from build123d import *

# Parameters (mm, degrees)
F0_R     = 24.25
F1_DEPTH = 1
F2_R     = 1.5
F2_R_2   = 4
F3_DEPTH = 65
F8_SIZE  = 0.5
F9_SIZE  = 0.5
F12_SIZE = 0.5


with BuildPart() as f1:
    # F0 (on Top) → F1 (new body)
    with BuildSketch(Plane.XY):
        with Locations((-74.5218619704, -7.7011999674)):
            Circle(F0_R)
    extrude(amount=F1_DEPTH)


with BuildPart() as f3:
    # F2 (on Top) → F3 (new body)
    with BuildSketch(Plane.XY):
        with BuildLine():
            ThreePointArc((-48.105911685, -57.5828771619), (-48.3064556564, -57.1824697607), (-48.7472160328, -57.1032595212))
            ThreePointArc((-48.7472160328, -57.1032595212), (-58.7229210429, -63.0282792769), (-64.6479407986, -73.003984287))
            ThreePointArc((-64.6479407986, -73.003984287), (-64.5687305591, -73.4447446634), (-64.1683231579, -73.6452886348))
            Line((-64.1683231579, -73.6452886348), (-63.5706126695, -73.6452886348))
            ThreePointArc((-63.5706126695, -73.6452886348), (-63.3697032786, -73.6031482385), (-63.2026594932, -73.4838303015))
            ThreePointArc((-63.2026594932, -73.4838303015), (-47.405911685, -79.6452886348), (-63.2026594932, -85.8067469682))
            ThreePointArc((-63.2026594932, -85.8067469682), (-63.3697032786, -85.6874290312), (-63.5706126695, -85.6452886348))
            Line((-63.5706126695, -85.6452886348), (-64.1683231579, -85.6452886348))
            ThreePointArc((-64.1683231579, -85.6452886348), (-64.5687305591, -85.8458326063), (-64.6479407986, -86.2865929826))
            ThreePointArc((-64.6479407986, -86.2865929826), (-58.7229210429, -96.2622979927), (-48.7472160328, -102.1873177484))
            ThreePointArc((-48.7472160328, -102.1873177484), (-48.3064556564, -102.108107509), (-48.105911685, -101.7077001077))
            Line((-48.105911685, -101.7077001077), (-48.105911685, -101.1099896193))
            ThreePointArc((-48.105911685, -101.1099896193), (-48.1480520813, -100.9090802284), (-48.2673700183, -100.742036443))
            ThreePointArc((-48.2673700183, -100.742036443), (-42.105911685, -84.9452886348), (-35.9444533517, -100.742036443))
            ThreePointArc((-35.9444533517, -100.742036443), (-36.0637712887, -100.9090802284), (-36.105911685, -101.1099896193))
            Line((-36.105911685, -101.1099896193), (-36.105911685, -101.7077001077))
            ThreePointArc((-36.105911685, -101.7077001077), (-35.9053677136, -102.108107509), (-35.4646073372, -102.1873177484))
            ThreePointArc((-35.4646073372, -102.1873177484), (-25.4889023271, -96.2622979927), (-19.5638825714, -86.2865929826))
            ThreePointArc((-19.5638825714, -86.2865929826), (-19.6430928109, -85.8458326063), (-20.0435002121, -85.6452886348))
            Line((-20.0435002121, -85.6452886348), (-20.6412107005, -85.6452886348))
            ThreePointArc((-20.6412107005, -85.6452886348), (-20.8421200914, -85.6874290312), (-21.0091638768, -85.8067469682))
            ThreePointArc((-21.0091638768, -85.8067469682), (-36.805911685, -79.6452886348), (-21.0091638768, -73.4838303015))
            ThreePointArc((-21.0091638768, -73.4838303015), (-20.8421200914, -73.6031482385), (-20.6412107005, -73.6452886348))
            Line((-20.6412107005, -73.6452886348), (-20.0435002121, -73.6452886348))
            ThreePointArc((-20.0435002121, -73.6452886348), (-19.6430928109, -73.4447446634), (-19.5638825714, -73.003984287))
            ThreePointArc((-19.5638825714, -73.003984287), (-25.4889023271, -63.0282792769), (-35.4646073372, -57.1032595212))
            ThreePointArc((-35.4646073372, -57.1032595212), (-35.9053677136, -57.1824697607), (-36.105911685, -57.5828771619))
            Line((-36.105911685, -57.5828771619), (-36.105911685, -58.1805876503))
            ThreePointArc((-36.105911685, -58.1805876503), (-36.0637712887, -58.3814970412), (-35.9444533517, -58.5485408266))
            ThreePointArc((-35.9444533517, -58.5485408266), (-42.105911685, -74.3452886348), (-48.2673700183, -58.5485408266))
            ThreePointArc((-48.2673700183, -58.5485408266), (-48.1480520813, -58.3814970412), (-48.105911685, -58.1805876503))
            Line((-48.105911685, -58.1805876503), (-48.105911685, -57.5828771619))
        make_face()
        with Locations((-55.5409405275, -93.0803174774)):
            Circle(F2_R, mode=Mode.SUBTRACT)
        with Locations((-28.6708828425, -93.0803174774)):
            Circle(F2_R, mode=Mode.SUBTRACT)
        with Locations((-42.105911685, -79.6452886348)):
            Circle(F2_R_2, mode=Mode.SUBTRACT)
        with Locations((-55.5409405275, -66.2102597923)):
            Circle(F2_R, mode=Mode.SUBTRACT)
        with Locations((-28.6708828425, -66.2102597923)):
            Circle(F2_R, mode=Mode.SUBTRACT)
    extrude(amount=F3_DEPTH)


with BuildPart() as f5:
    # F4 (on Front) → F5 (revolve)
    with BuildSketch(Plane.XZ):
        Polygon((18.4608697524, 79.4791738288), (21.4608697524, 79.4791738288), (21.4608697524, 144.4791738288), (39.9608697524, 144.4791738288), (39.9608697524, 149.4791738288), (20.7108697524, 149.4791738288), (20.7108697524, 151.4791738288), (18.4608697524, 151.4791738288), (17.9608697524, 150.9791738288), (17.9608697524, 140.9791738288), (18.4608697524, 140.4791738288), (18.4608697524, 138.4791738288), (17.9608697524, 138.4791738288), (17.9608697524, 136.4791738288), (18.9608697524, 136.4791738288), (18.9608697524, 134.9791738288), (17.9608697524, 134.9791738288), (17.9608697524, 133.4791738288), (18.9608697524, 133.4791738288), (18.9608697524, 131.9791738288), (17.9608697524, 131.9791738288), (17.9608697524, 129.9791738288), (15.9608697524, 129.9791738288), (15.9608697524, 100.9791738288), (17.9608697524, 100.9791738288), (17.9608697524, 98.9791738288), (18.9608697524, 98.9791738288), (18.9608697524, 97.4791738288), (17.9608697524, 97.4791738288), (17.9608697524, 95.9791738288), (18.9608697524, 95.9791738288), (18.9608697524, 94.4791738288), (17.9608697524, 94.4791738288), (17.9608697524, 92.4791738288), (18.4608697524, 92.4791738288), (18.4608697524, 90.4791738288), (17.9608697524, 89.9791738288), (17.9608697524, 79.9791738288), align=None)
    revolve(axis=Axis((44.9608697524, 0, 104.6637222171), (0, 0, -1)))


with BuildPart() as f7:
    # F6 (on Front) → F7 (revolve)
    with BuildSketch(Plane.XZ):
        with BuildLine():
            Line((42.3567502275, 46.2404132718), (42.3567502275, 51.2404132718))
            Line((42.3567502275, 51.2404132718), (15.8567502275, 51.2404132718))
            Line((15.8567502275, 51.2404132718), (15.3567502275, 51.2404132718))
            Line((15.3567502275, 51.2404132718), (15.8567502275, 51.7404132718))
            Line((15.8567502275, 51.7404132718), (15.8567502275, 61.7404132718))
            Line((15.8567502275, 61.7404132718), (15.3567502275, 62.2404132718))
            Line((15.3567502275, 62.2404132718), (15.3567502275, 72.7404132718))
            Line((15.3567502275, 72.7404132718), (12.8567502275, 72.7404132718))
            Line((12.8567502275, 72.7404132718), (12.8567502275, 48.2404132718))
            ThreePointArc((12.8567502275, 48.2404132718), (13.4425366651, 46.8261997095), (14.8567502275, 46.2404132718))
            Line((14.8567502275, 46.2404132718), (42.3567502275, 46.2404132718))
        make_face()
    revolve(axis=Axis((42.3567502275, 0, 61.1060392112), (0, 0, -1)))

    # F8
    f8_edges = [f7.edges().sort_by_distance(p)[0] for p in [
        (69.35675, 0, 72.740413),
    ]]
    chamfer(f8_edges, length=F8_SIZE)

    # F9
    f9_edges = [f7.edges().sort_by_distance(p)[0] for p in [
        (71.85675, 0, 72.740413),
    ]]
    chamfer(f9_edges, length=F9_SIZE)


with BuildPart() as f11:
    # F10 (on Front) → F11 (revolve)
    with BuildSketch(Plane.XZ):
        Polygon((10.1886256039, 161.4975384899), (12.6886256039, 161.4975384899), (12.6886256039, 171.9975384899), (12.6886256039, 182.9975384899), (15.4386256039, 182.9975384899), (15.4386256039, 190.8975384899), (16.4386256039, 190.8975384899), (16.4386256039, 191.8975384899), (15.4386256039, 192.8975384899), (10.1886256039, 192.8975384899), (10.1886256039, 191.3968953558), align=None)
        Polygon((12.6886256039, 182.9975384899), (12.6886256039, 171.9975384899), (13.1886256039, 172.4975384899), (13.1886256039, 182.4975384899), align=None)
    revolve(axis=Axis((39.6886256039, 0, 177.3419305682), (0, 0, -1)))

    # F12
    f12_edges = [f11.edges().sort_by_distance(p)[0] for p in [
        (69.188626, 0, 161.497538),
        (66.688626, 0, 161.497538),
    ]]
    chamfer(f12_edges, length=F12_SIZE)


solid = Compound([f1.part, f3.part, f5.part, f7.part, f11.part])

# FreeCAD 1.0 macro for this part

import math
import FreeCAD as App
import Part
import Sketcher

V = App.Vector
Q = App.Units.Quantity


def edges_at(feature, points):
    """Names of the edges that pass closest to the given points."""
    edges = feature.Shape.Edges
    near = lambda p: min(range(len(edges)), key=lambda i: edges[i].distToShape(Part.Vertex(*p))[0])
    return sorted({f"Edge{near(p) + 1}" for p in points})


def add_polygon(sketch, points):
    """Adds a closed chain of lines whose ends are joined by coincident constraints."""
    first, n = sketch.GeometryCount, len(points)
    for a, b in zip(points, points[1:] + points[:1]):
        sketch.addGeometry(Part.LineSegment(App.Vector(*a, 0), App.Vector(*b, 0)), False)
    for i in range(n):
        sketch.addConstraint(Sketcher.Constraint("Coincident", first + i, 2, first + (i + 1) % n, 1))

doc = App.newDocument("Part")
body = doc.addObject("PartDesign::Body", "Body")

# Sketch on XY plane
sketch1 = body.newObject("Sketcher::SketchObject", "Sketch")
sketch1.AttachmentSupport = (doc.getObject("XY_Plane"), [""])
sketch1.MapMode = "FlatFace"
sketch1.addGeometry(Part.Circle(V(-75, -8, 0), V(0, 0, 1), 24), False)
sketch1.addConstraint(Sketcher.Constraint("Diameter", 0, Q("48.5 mm")))
sketch1.addConstraint(Sketcher.Constraint("DistanceY", 0, 3, -1, 1, Q("7.7012 mm")))
sketch1.addConstraint(Sketcher.Constraint("DistanceX", 0, 3, -1, 1, Q("74.521862 mm")))
pad1 = body.newObject("PartDesign::Pad", "Pad")
pad1.Profile = sketch1
pad1.Length = 1
body2 = doc.addObject("PartDesign::Body", "Body001")

# Sketch on XY plane
sketch2 = body2.newObject("Sketcher::SketchObject", "Sketch001")
sketch2.AttachmentSupport = (doc.getObject("XY_Plane001"), [""])
sketch2.MapMode = "FlatFace"
sketch2.addGeometry(Part.ArcOfCircle(Part.Circle(V(-48.61, -57.58, 0), V(0, 0, 1), 0.5), math.radians(0), math.radians(106)), False)
sketch2.addGeometry(Part.ArcOfCircle(Part.Circle(V(-42.11, -79.65, 0), V(0, 0, 1), 23.5), math.radians(106), math.radians(164)), False)
sketch2.addGeometry(Part.ArcOfCircle(Part.Circle(V(-64.17, -73.15, 0), V(0, 0, 1), 0.5), math.radians(164), math.radians(270)), False)
sketch2.addGeometry(Part.LineSegment(V(-64.17, -73.65, 0), V(-63.57, -73.65, 0)), False)
sketch2.addGeometry(Part.ArcOfCircle(Part.Circle(V(-63.57, -73.15, 0), V(0, 0, 1), 0.5), math.radians(-90), math.radians(-43)), False)
sketch2.addGeometry(Part.ArcOfCircle(Part.Circle(V(-56.51, -79.65, 0), V(0, 0, 1), 9.1), math.radians(-137), math.radians(137)), False)
sketch2.addGeometry(Part.ArcOfCircle(Part.Circle(V(-63.57, -86.15, 0), V(0, 0, 1), 0.5), math.radians(43), math.radians(90)), False)
sketch2.addGeometry(Part.LineSegment(V(-63.57, -85.65, 0), V(-64.17, -85.65, 0)), False)
sketch2.addGeometry(Part.ArcOfCircle(Part.Circle(V(-64.17, -86.15, 0), V(0, 0, 1), 0.5), math.radians(90), math.radians(196)), False)
sketch2.addGeometry(Part.ArcOfCircle(Part.Circle(V(-42.11, -79.65, 0), V(0, 0, 1), 23.5), math.radians(-164), math.radians(-106)), False)
sketch2.addGeometry(Part.ArcOfCircle(Part.Circle(V(-48.61, -101.71, 0), V(0, 0, 1), 0.5), math.radians(-106), math.radians(0)), False)
sketch2.addGeometry(Part.LineSegment(V(-48.11, -101.71, 0), V(-48.11, -101.11, 0)), False)
sketch2.addGeometry(Part.ArcOfCircle(Part.Circle(V(-48.61, -101.11, 0), V(0, 0, 1), 0.5), math.radians(0), math.radians(47)), False)
sketch2.addGeometry(Part.ArcOfCircle(Part.Circle(V(-42.11, -94.05, 0), V(0, 0, 1), 9.1), math.radians(-47), math.radians(227)), False)
sketch2.addGeometry(Part.ArcOfCircle(Part.Circle(V(-35.61, -101.11, 0), V(0, 0, 1), 0.5), math.radians(133), math.radians(180)), False)
sketch2.addGeometry(Part.LineSegment(V(-36.11, -101.11, 0), V(-36.11, -101.71, 0)), False)
sketch2.addGeometry(Part.ArcOfCircle(Part.Circle(V(-35.61, -101.71, 0), V(0, 0, 1), 0.5), math.radians(180), math.radians(286)), False)
sketch2.addGeometry(Part.ArcOfCircle(Part.Circle(V(-42.11, -79.65, 0), V(0, 0, 1), 23.5), math.radians(-74), math.radians(-16)), False)
sketch2.addGeometry(Part.ArcOfCircle(Part.Circle(V(-20.04, -86.15, 0), V(0, 0, 1), 0.5), math.radians(-16), math.radians(90)), False)
sketch2.addGeometry(Part.LineSegment(V(-20.04, -85.65, 0), V(-20.64, -85.65, 0)), False)
sketch2.addGeometry(Part.ArcOfCircle(Part.Circle(V(-20.64, -86.15, 0), V(0, 0, 1), 0.5), math.radians(90), math.radians(137)), False)
sketch2.addGeometry(Part.ArcOfCircle(Part.Circle(V(-27.71, -79.65, 0), V(0, 0, 1), 9.1), math.radians(43), math.radians(317)), False)
sketch2.addGeometry(Part.ArcOfCircle(Part.Circle(V(-20.64, -73.15, 0), V(0, 0, 1), 0.5), math.radians(-137), math.radians(-90)), False)
sketch2.addGeometry(Part.LineSegment(V(-20.64, -73.65, 0), V(-20.04, -73.65, 0)), False)
sketch2.addGeometry(Part.ArcOfCircle(Part.Circle(V(-20.04, -73.15, 0), V(0, 0, 1), 0.5), math.radians(-90), math.radians(16)), False)
sketch2.addGeometry(Part.ArcOfCircle(Part.Circle(V(-42.11, -79.65, 0), V(0, 0, 1), 23.5), math.radians(16), math.radians(74)), False)
sketch2.addGeometry(Part.ArcOfCircle(Part.Circle(V(-35.61, -57.58, 0), V(0, 0, 1), 0.5), math.radians(74), math.radians(180)), False)
sketch2.addGeometry(Part.LineSegment(V(-36.11, -57.58, 0), V(-36.11, -58.18, 0)), False)
sketch2.addGeometry(Part.ArcOfCircle(Part.Circle(V(-35.61, -58.18, 0), V(0, 0, 1), 0.5), math.radians(180), math.radians(227)), False)
sketch2.addGeometry(Part.ArcOfCircle(Part.Circle(V(-42.11, -65.25, 0), V(0, 0, 1), 9.1), math.radians(133), math.radians(407)), False)
sketch2.addGeometry(Part.ArcOfCircle(Part.Circle(V(-48.61, -58.18, 0), V(0, 0, 1), 0.5), math.radians(-47), math.radians(0)), False)
sketch2.addGeometry(Part.LineSegment(V(-48.11, -58.18, 0), V(-48.11, -57.58, 0)), False)
sketch2.addGeometry(Part.Circle(V(-55.54, -93.08, 0), V(0, 0, 1), 1.5), False)
sketch2.addGeometry(Part.Circle(V(-28.67, -93.08, 0), V(0, 0, 1), 1.5), False)
sketch2.addGeometry(Part.Circle(V(-42.11, -79.65, 0), V(0, 0, 1), 4), False)
sketch2.addGeometry(Part.Circle(V(-55.54, -66.21, 0), V(0, 0, 1), 1.5), False)
sketch2.addGeometry(Part.Circle(V(-28.67, -66.21, 0), V(0, 0, 1), 1.5), False)
sketch2.addConstraint(Sketcher.Constraint("Tangent", 0, 2, 1, 1))
sketch2.addConstraint(Sketcher.Constraint("Tangent", 1, 2, 2, 1))
sketch2.addConstraint(Sketcher.Constraint("Tangent", 2, 2, 3, 1))
sketch2.addConstraint(Sketcher.Constraint("Tangent", 3, 2, 4, 1))
sketch2.addConstraint(Sketcher.Constraint("Tangent", 4, 2, 5, 2))
sketch2.addConstraint(Sketcher.Constraint("Tangent", 5, 1, 6, 1))
sketch2.addConstraint(Sketcher.Constraint("Tangent", 6, 2, 7, 1))
sketch2.addConstraint(Sketcher.Constraint("Tangent", 7, 2, 8, 1))
sketch2.addConstraint(Sketcher.Constraint("Tangent", 8, 2, 9, 1))
sketch2.addConstraint(Sketcher.Constraint("Tangent", 9, 2, 10, 1))
sketch2.addConstraint(Sketcher.Constraint("Tangent", 10, 2, 11, 1))
sketch2.addConstraint(Sketcher.Constraint("Tangent", 11, 2, 12, 1))
sketch2.addConstraint(Sketcher.Constraint("Tangent", 12, 2, 13, 2))
sketch2.addConstraint(Sketcher.Constraint("Tangent", 13, 1, 14, 1))
sketch2.addConstraint(Sketcher.Constraint("Tangent", 14, 2, 15, 1))
sketch2.addConstraint(Sketcher.Constraint("Tangent", 15, 2, 16, 1))
sketch2.addConstraint(Sketcher.Constraint("Tangent", 16, 2, 17, 1))
sketch2.addConstraint(Sketcher.Constraint("Tangent", 17, 2, 18, 1))
sketch2.addConstraint(Sketcher.Constraint("Tangent", 18, 2, 19, 1))
sketch2.addConstraint(Sketcher.Constraint("Tangent", 19, 2, 20, 1))
sketch2.addConstraint(Sketcher.Constraint("Tangent", 20, 2, 21, 2))
sketch2.addConstraint(Sketcher.Constraint("Tangent", 21, 1, 22, 1))
sketch2.addConstraint(Sketcher.Constraint("Tangent", 22, 2, 23, 1))
sketch2.addConstraint(Sketcher.Constraint("Tangent", 23, 2, 24, 1))
sketch2.addConstraint(Sketcher.Constraint("Tangent", 24, 2, 25, 1))
sketch2.addConstraint(Sketcher.Constraint("Tangent", 25, 2, 26, 1))
sketch2.addConstraint(Sketcher.Constraint("Tangent", 26, 2, 27, 1))
sketch2.addConstraint(Sketcher.Constraint("Tangent", 27, 2, 28, 1))
sketch2.addConstraint(Sketcher.Constraint("Tangent", 28, 2, 29, 2))
sketch2.addConstraint(Sketcher.Constraint("Tangent", 29, 1, 30, 1))
sketch2.addConstraint(Sketcher.Constraint("Tangent", 30, 2, 31, 1))
sketch2.addConstraint(Sketcher.Constraint("Tangent", 31, 2, 0, 1))
sketch2.addConstraint(Sketcher.Constraint("Horizontal", 3))
sketch2.addConstraint(Sketcher.Constraint("Horizontal", 7))
sketch2.addConstraint(Sketcher.Constraint("Vertical", 11))
sketch2.addConstraint(Sketcher.Constraint("Vertical", 15))
sketch2.addConstraint(Sketcher.Constraint("Horizontal", 19))
sketch2.addConstraint(Sketcher.Constraint("Horizontal", 23))
sketch2.addConstraint(Sketcher.Constraint("Vertical", 27))
sketch2.addConstraint(Sketcher.Constraint("Vertical", 31))
sketch2.addConstraint(Sketcher.Constraint("Coincident", 9, 3, 1, 3))
sketch2.addConstraint(Sketcher.Constraint("Coincident", 17, 3, 1, 3))
sketch2.addConstraint(Sketcher.Constraint("Coincident", 25, 3, 1, 3))
sketch2.addConstraint(Sketcher.Constraint("Coincident", 34, 3, 1, 3))
sketch2.addConstraint(Sketcher.Constraint("Equal", 0, 2))
sketch2.addConstraint(Sketcher.Constraint("Equal", 2, 4))
sketch2.addConstraint(Sketcher.Constraint("Equal", 4, 6))
sketch2.addConstraint(Sketcher.Constraint("Equal", 6, 8))
sketch2.addConstraint(Sketcher.Constraint("Equal", 1, 9))
sketch2.addConstraint(Sketcher.Constraint("Equal", 8, 10))
sketch2.addConstraint(Sketcher.Constraint("Equal", 10, 12))
sketch2.addConstraint(Sketcher.Constraint("Equal", 5, 13))
sketch2.addConstraint(Sketcher.Constraint("Equal", 12, 14))
sketch2.addConstraint(Sketcher.Constraint("Equal", 14, 16))
sketch2.addConstraint(Sketcher.Constraint("Equal", 9, 17))
sketch2.addConstraint(Sketcher.Constraint("Equal", 16, 18))
sketch2.addConstraint(Sketcher.Constraint("Equal", 18, 20))
sketch2.addConstraint(Sketcher.Constraint("Equal", 13, 21))
sketch2.addConstraint(Sketcher.Constraint("Equal", 20, 22))
sketch2.addConstraint(Sketcher.Constraint("Equal", 22, 24))
sketch2.addConstraint(Sketcher.Constraint("Equal", 17, 25))
sketch2.addConstraint(Sketcher.Constraint("Equal", 24, 26))
sketch2.addConstraint(Sketcher.Constraint("Equal", 26, 28))
sketch2.addConstraint(Sketcher.Constraint("Equal", 21, 29))
sketch2.addConstraint(Sketcher.Constraint("Equal", 28, 30))
sketch2.addConstraint(Sketcher.Constraint("Equal", 32, 33))
sketch2.addConstraint(Sketcher.Constraint("Equal", 33, 35))
sketch2.addConstraint(Sketcher.Constraint("Equal", 35, 36))
sketch2.addConstraint(Sketcher.Constraint("Horizontal", 1, 3, 5, 3))
sketch2.addConstraint(Sketcher.Constraint("Horizontal", 12, 3, 14, 3))
sketch2.addConstraint(Sketcher.Constraint("Horizontal", 10, 3, 16, 3))
sketch2.addConstraint(Sketcher.Constraint("Horizontal", 8, 3, 18, 3))
sketch2.addConstraint(Sketcher.Constraint("Horizontal", 17, 3, 21, 3))
sketch2.addConstraint(Sketcher.Constraint("Horizontal", 4, 3, 22, 3))
sketch2.addConstraint(Sketcher.Constraint("Horizontal", 0, 3, 26, 3))
sketch2.addConstraint(Sketcher.Constraint("Horizontal", 28, 3, 30, 3))
sketch2.addConstraint(Sketcher.Constraint("Horizontal", 32, 3, 33, 3))
sketch2.addConstraint(Sketcher.Constraint("Horizontal", 35, 3, 36, 3))
sketch2.addConstraint(Sketcher.Constraint("Vertical", 4, 3, 6, 3))
sketch2.addConstraint(Sketcher.Constraint("Vertical", 0, 3, 10, 3))
sketch2.addConstraint(Sketcher.Constraint("Vertical", 32, 3, 35, 3))
sketch2.addConstraint(Sketcher.Constraint("Vertical", 33, 3, 36, 3))
sketch2.addConstraint(Sketcher.Constraint("Equal", 7, 19))
sketch2.addConstraint(Sketcher.Constraint("Equal", 23, 11))
sketch2.addConstraint(Sketcher.Constraint("Equal", 15, 27))
sketch2.addConstraint(Sketcher.Constraint("Diameter", 32, Q("3 mm")))
sketch2.addConstraint(Sketcher.Constraint("Diameter", 34, Q("8 mm")))
sketch2.addConstraint(Sketcher.Constraint("Radius", 0, Q("0.5 mm")))
sketch2.addConstraint(Sketcher.Constraint("Radius", 1, Q("23.5 mm")))
sketch2.addConstraint(Sketcher.Constraint("Radius", 5, Q("9.1 mm")))
sketch2.addConstraint(Sketcher.Constraint("DistanceX", 3, 1, 3, 2, Q("0.59771 mm")))
sketch2.addConstraint(Sketcher.Constraint("DistanceY", 10, 3, -1, 1, Q("101.7077 mm")))
sketch2.addConstraint(Sketcher.Constraint("DistanceX", 18, 3, -1, 1, Q("20.0435 mm")))
sketch2.addConstraint(Sketcher.Constraint("DistanceX", 0, 3, -1, 1, Q("48.605912 mm")))
sketch2.addConstraint(Sketcher.Constraint("DistanceX", 1, 3, -1, 1, Q("42.105912 mm")))
sketch2.addConstraint(Sketcher.Constraint("DistanceX", 32, 3, -1, 1, Q("55.540941 mm")))
sketch2.addConstraint(Sketcher.Constraint("DistanceY", 35, 3, -1, 1, Q("66.21026 mm")))
sketch2.addConstraint(Sketcher.Constraint("DistanceY", 32, 3, -1, 1, Q("93.080317 mm")))
sketch2.addConstraint(Sketcher.Constraint("DistanceX", 33, 3, -1, 1, Q("28.670883 mm")))
pad2 = body2.newObject("PartDesign::Pad", "Pad001")
pad2.Profile = sketch2
pad2.Length = 65
body3 = doc.addObject("PartDesign::Body", "Body002")

# Sketch on XZ plane
sketch3 = body3.newObject("Sketcher::SketchObject", "Sketch002")
sketch3.AttachmentSupport = (doc.getObject("XZ_Plane002"), [""])
sketch3.MapMode = "FlatFace"
add_polygon(sketch3, [(18.5, 79.5), (21.5, 79.5), (21.5, 144.5), (40, 144.5), (40, 149.5), (20.7, 149.5), (20.7, 151.5), (18.5, 151.5), (18, 151), (18, 141), (18.5, 140.5), (18.5, 138.5), (18, 138.5), (18, 136.5), (19, 136.5), (19, 135), (18, 135), (18, 133.5), (19, 133.5), (19, 132), (18, 132), (18, 130), (16, 130), (16, 101), (18, 101), (18, 99), (19, 99), (19, 97.5), (18, 97.5), (18, 96), (19, 96), (19, 94.5), (18, 94.5), (18, 92.5), (18.5, 92.5), (18.5, 90.5), (18, 90), (18, 80)])  # lines 0-37
sketch3.addGeometry(Part.LineSegment(V(45, 151.5, 0), V(45, 79.5, 0)), True)  # axis
sketch3.addConstraint(Sketcher.Constraint("Horizontal", 0))
sketch3.addConstraint(Sketcher.Constraint("Vertical", 1))
sketch3.addConstraint(Sketcher.Constraint("Horizontal", 2))
sketch3.addConstraint(Sketcher.Constraint("Vertical", 3))
sketch3.addConstraint(Sketcher.Constraint("Horizontal", 4))
sketch3.addConstraint(Sketcher.Constraint("Vertical", 5))
sketch3.addConstraint(Sketcher.Constraint("Horizontal", 6))
sketch3.addConstraint(Sketcher.Constraint("Vertical", 8))
sketch3.addConstraint(Sketcher.Constraint("Vertical", 10))
sketch3.addConstraint(Sketcher.Constraint("Horizontal", 11))
sketch3.addConstraint(Sketcher.Constraint("Vertical", 12))
sketch3.addConstraint(Sketcher.Constraint("Horizontal", 13))
sketch3.addConstraint(Sketcher.Constraint("Vertical", 14))
sketch3.addConstraint(Sketcher.Constraint("Horizontal", 15))
sketch3.addConstraint(Sketcher.Constraint("Vertical", 16))
sketch3.addConstraint(Sketcher.Constraint("Horizontal", 17))
sketch3.addConstraint(Sketcher.Constraint("Vertical", 18))
sketch3.addConstraint(Sketcher.Constraint("Horizontal", 19))
sketch3.addConstraint(Sketcher.Constraint("Vertical", 20))
sketch3.addConstraint(Sketcher.Constraint("Horizontal", 21))
sketch3.addConstraint(Sketcher.Constraint("Vertical", 22))
sketch3.addConstraint(Sketcher.Constraint("Horizontal", 23))
sketch3.addConstraint(Sketcher.Constraint("Vertical", 24))
sketch3.addConstraint(Sketcher.Constraint("Horizontal", 25))
sketch3.addConstraint(Sketcher.Constraint("Vertical", 26))
sketch3.addConstraint(Sketcher.Constraint("Horizontal", 27))
sketch3.addConstraint(Sketcher.Constraint("Vertical", 28))
sketch3.addConstraint(Sketcher.Constraint("Horizontal", 29))
sketch3.addConstraint(Sketcher.Constraint("Vertical", 30))
sketch3.addConstraint(Sketcher.Constraint("Horizontal", 31))
sketch3.addConstraint(Sketcher.Constraint("Vertical", 32))
sketch3.addConstraint(Sketcher.Constraint("Horizontal", 33))
sketch3.addConstraint(Sketcher.Constraint("Vertical", 34))
sketch3.addConstraint(Sketcher.Constraint("Vertical", 36))
sketch3.addConstraint(Sketcher.Constraint("Vertical", 38))
sketch3.addConstraint(Sketcher.Constraint("Perpendicular", 7, 9))
sketch3.addConstraint(Sketcher.Constraint("Perpendicular", 9, 35))
sketch3.addConstraint(Sketcher.Constraint("Perpendicular", 35, 37))
sketch3.addConstraint(Sketcher.Constraint("Horizontal", 6, 2, 38, 1))
sketch3.addConstraint(Sketcher.Constraint("Horizontal", 37, 2, 38, 2))
sketch3.addConstraint(Sketcher.Constraint("Vertical", 6, 2, 9, 2))
sketch3.addConstraint(Sketcher.Constraint("Vertical", 8, 2, 11, 2))
sketch3.addConstraint(Sketcher.Constraint("Vertical", 12, 2, 15, 2))
sketch3.addConstraint(Sketcher.Constraint("Vertical", 14, 2, 17, 2))
sketch3.addConstraint(Sketcher.Constraint("Vertical", 16, 2, 19, 2))
sketch3.addConstraint(Sketcher.Constraint("Vertical", 20, 2, 23, 2))
sketch3.addConstraint(Sketcher.Constraint("Vertical", 18, 2, 25, 2))
sketch3.addConstraint(Sketcher.Constraint("Vertical", 24, 2, 27, 2))
sketch3.addConstraint(Sketcher.Constraint("Vertical", 26, 2, 29, 2))
sketch3.addConstraint(Sketcher.Constraint("Vertical", 28, 2, 31, 2))
sketch3.addConstraint(Sketcher.Constraint("Vertical", 10, 2, 33, 2))
sketch3.addConstraint(Sketcher.Constraint("Vertical", 32, 2, 35, 2))
sketch3.addConstraint(Sketcher.Constraint("Vertical", 34, 2, 37, 2))
sketch3.addConstraint(Sketcher.Constraint("Equal", 23, 5))
sketch3.addConstraint(Sketcher.Constraint("Equal", 5, 10))
sketch3.addConstraint(Sketcher.Constraint("Equal", 10, 12))
sketch3.addConstraint(Sketcher.Constraint("Equal", 14, 16))
sketch3.addConstraint(Sketcher.Constraint("Equal", 16, 18))
sketch3.addConstraint(Sketcher.Constraint("Equal", 12, 20))
sketch3.addConstraint(Sketcher.Constraint("Equal", 20, 24))
sketch3.addConstraint(Sketcher.Constraint("Equal", 18, 26))
sketch3.addConstraint(Sketcher.Constraint("Equal", 26, 28))
sketch3.addConstraint(Sketcher.Constraint("Equal", 28, 30))
sketch3.addConstraint(Sketcher.Constraint("Equal", 24, 32))
sketch3.addConstraint(Sketcher.Constraint("Equal", 32, 34))
sketch3.addConstraint(Sketcher.Constraint("Equal", 8, 36))
sketch3.addConstraint(Sketcher.Constraint("Equal", 7, 9))
sketch3.addConstraint(Sketcher.Constraint("DistanceX", 0, 1, 0, 2, Q("3 mm")))
sketch3.addConstraint(Sketcher.Constraint("DistanceX", 13, 1, 13, 2, Q("1 mm")))
sketch3.addConstraint(Sketcher.Constraint("DistanceX", 21, 2, 21, 1, Q("2 mm")))
sketch3.addConstraint(Sketcher.Constraint("DistanceY", 1, 1, 1, 2, Q("65 mm")))
sketch3.addConstraint(Sketcher.Constraint("DistanceY", 3, 1, 3, 2, Q("5 mm")))
sketch3.addConstraint(Sketcher.Constraint("DistanceY", 8, 2, 8, 1, Q("10 mm")))
sketch3.addConstraint(Sketcher.Constraint("DistanceY", 22, 2, 22, 1, Q("29 mm")))
sketch3.addConstraint(Sketcher.Constraint("DistanceX", 2, 1, 2, 2, Q("18.5 mm")))
sketch3.addConstraint(Sketcher.Constraint("DistanceX", 11, 2, 11, 1, Q("0.5 mm")))
sketch3.addConstraint(Sketcher.Constraint("DistanceX", 3, 2, 38, 1, Q("5 mm")))
sketch3.addConstraint(Sketcher.Constraint("DistanceX", 4, 2, 4, 1, Q("19.25 mm")))
sketch3.addConstraint(Sketcher.Constraint("DistanceX", -1, 1, 0, 2, Q("21.46087 mm")))
sketch3.addConstraint(Sketcher.Constraint("DistanceY", -1, 1, 0, 2, Q("79.479174 mm")))
revolution = body3.newObject("PartDesign::Revolution", "Revolution")
revolution.Profile = sketch3
revolution.ReferenceAxis = (sketch3, ["Axis0"])
revolution.Angle = 360
body4 = doc.addObject("PartDesign::Body", "Body003")

# Sketch on XZ plane
sketch4 = body4.newObject("Sketcher::SketchObject", "Sketch003")
sketch4.AttachmentSupport = (doc.getObject("XZ_Plane003"), [""])
sketch4.MapMode = "FlatFace"
sketch4.addGeometry(Part.LineSegment(V(42.4, 46.2, 0), V(42.4, 51.2, 0)), False)
sketch4.addGeometry(Part.LineSegment(V(42.4, 51.2, 0), V(15.4, 51.2, 0)), False)
sketch4.addGeometry(Part.LineSegment(V(15.4, 51.2, 0), V(15.9, 51.7, 0)), False)
sketch4.addGeometry(Part.LineSegment(V(15.9, 51.7, 0), V(15.9, 61.7, 0)), False)
sketch4.addGeometry(Part.LineSegment(V(15.9, 61.7, 0), V(15.4, 62.2, 0)), False)
sketch4.addGeometry(Part.LineSegment(V(15.4, 62.2, 0), V(15.4, 72.7, 0)), False)
sketch4.addGeometry(Part.LineSegment(V(15.4, 72.7, 0), V(12.9, 72.7, 0)), False)
sketch4.addGeometry(Part.LineSegment(V(12.9, 72.7, 0), V(12.9, 48.2, 0)), False)
sketch4.addGeometry(Part.ArcOfCircle(Part.Circle(V(14.9, 48.2, 0), V(0, 0, 1), 2), math.radians(180), math.radians(270)), False)
sketch4.addGeometry(Part.LineSegment(V(14.9, 46.2, 0), V(42.4, 46.2, 0)), False)
sketch4.addGeometry(Part.LineSegment(V(42.4, 72.7, 0), V(42.4, 46.2, 0)), True)  # axis
sketch4.addConstraint(Sketcher.Constraint("Coincident", 0, 2, 1, 1))
sketch4.addConstraint(Sketcher.Constraint("Coincident", 1, 2, 2, 1))
sketch4.addConstraint(Sketcher.Constraint("Coincident", 2, 2, 3, 1))
sketch4.addConstraint(Sketcher.Constraint("Coincident", 3, 2, 4, 1))
sketch4.addConstraint(Sketcher.Constraint("Coincident", 4, 2, 5, 1))
sketch4.addConstraint(Sketcher.Constraint("Coincident", 5, 2, 6, 1))
sketch4.addConstraint(Sketcher.Constraint("Coincident", 6, 2, 7, 1))
sketch4.addConstraint(Sketcher.Constraint("Tangent", 7, 2, 8, 1))
sketch4.addConstraint(Sketcher.Constraint("Tangent", 8, 2, 9, 1))
sketch4.addConstraint(Sketcher.Constraint("Coincident", 9, 2, 0, 1))
sketch4.addConstraint(Sketcher.Constraint("Vertical", 0))
sketch4.addConstraint(Sketcher.Constraint("Horizontal", 1))
sketch4.addConstraint(Sketcher.Constraint("Vertical", 3))
sketch4.addConstraint(Sketcher.Constraint("Vertical", 5))
sketch4.addConstraint(Sketcher.Constraint("Horizontal", 6))
sketch4.addConstraint(Sketcher.Constraint("Vertical", 7))
sketch4.addConstraint(Sketcher.Constraint("Horizontal", 9))
sketch4.addConstraint(Sketcher.Constraint("Vertical", 10))
sketch4.addConstraint(Sketcher.Constraint("Coincident", 10, 2, 9, 2))
sketch4.addConstraint(Sketcher.Constraint("Perpendicular", 2, 4))
sketch4.addConstraint(Sketcher.Constraint("Horizontal", 6, 2, 10, 1))
sketch4.addConstraint(Sketcher.Constraint("Vertical", 1, 2, 4, 2))
sketch4.addConstraint(Sketcher.Constraint("Equal", 2, 4))
sketch4.addConstraint(Sketcher.Constraint("Radius", 8, Q("2 mm")))
sketch4.addConstraint(Sketcher.Constraint("DistanceX", 1, 2, 1, 1, Q("27 mm")))
sketch4.addConstraint(Sketcher.Constraint("DistanceY", 0, 1, 0, 2, Q("5 mm")))
sketch4.addConstraint(Sketcher.Constraint("DistanceY", 3, 1, 3, 2, Q("10 mm")))
sketch4.addConstraint(Sketcher.Constraint("DistanceX", 6, 2, 6, 1, Q("2.5 mm")))
sketch4.addConstraint(Sketcher.Constraint("DistanceY", 5, 1, 5, 2, Q("10.5 mm")))
sketch4.addConstraint(Sketcher.Constraint("DistanceY", 7, 2, 7, 1, Q("24.5 mm")))
sketch4.addConstraint(Sketcher.Constraint("DistanceX", -1, 1, 8, 3, Q("14.85675 mm")))
sketch4.addConstraint(Sketcher.Constraint("DistanceY", -1, 1, 8, 3, Q("48.240413 mm")))
revolution2 = body4.newObject("PartDesign::Revolution", "Revolution001")
revolution2.Profile = sketch4
revolution2.ReferenceAxis = (sketch4, ["Axis0"])
revolution2.Angle = 360
doc.recompute()

chamfer = body4.newObject("PartDesign::Chamfer", "Chamfer")
chamfer.Base = (revolution2, edges_at(revolution2, [(69.357, 0, 72.74)]))
chamfer.Size = 0.5
doc.recompute()

chamfer2 = body4.newObject("PartDesign::Chamfer", "Chamfer001")
chamfer2.Base = (chamfer, edges_at(chamfer, [(71.857, 0, 72.74)]))
chamfer2.Size = 0.5
body5 = doc.addObject("PartDesign::Body", "Body004")

# Sketch on XZ plane
sketch5 = body5.newObject("Sketcher::SketchObject", "Sketch004")
sketch5.AttachmentSupport = (doc.getObject("XZ_Plane004"), [""])
sketch5.MapMode = "FlatFace"
add_polygon(sketch5, [(10.2, 161.5), (12.7, 161.5), (12.7, 172), (13.2, 172.5), (13.2, 182.5), (12.7, 183), (15.4, 183), (15.4, 190.9), (16.4, 190.9), (16.4, 191.9), (15.4, 192.9), (10.2, 192.9)])  # lines 0-11
sketch5.addGeometry(Part.LineSegment(V(39.7, 192.9, 0), V(39.7, 161.5, 0)), True)  # axis
sketch5.addConstraint(Sketcher.Constraint("Horizontal", 0))
sketch5.addConstraint(Sketcher.Constraint("Vertical", 1))
sketch5.addConstraint(Sketcher.Constraint("Vertical", 3))
sketch5.addConstraint(Sketcher.Constraint("Horizontal", 5))
sketch5.addConstraint(Sketcher.Constraint("Vertical", 6))
sketch5.addConstraint(Sketcher.Constraint("Horizontal", 7))
sketch5.addConstraint(Sketcher.Constraint("Vertical", 8))
sketch5.addConstraint(Sketcher.Constraint("Horizontal", 10))
sketch5.addConstraint(Sketcher.Constraint("Vertical", 11))
sketch5.addConstraint(Sketcher.Constraint("Vertical", 12))
sketch5.addConstraint(Sketcher.Constraint("Perpendicular", 2, 4))
sketch5.addConstraint(Sketcher.Constraint("Parallel", 4, 9))
sketch5.addConstraint(Sketcher.Constraint("Horizontal", 10, 2, 12, 1))
sketch5.addConstraint(Sketcher.Constraint("Horizontal", 11, 2, 12, 2))
sketch5.addConstraint(Sketcher.Constraint("Vertical", 1, 2, 4, 2))
sketch5.addConstraint(Sketcher.Constraint("Vertical", 6, 2, 9, 2))
sketch5.addConstraint(Sketcher.Constraint("Equal", 7, 8))
sketch5.addConstraint(Sketcher.Constraint("Equal", 2, 4))
sketch5.addConstraint(Sketcher.Constraint("DistanceX", 7, 1, 7, 2, Q("1 mm")))
sketch5.addConstraint(Sketcher.Constraint("DistanceY", 3, 1, 3, 2, Q("10 mm")))
sketch5.addConstraint(Sketcher.Constraint("DistanceX", 0, 1, 0, 2, Q("2.5 mm")))
sketch5.addConstraint(Sketcher.Constraint("DistanceY", 1, 1, 1, 2, Q("10.5 mm")))
sketch5.addConstraint(Sketcher.Constraint("DistanceY", 6, 1, 6, 2, Q("7.9 mm")))
sketch5.addConstraint(Sketcher.Constraint("DistanceY", 11, 2, 11, 1, Q("31.4 mm")))
sketch5.addConstraint(Sketcher.Constraint("DistanceX", 0, 2, 12, 2, Q("27 mm")))
sketch5.addConstraint(Sketcher.Constraint("DistanceX", 5, 1, 5, 2, Q("2.75 mm")))
sketch5.addConstraint(Sketcher.Constraint("DistanceY", -1, 1, 0, 2, Q("161.497538 mm")))
sketch5.addConstraint(Sketcher.Constraint("DistanceX", -1, 1, 0, 2, Q("12.688626 mm")))
revolution3 = body5.newObject("PartDesign::Revolution", "Revolution002")
revolution3.Profile = sketch5
revolution3.ReferenceAxis = (sketch5, ["Axis0"])
revolution3.Angle = 360
doc.recompute()

chamfer3 = body5.newObject("PartDesign::Chamfer", "Chamfer002")
chamfer3.Base = (revolution3, edges_at(revolution3, [(69.189, 0, 161.498), (66.689, 0, 161.498)]))
chamfer3.Size = 0.5

doc.recompute()
